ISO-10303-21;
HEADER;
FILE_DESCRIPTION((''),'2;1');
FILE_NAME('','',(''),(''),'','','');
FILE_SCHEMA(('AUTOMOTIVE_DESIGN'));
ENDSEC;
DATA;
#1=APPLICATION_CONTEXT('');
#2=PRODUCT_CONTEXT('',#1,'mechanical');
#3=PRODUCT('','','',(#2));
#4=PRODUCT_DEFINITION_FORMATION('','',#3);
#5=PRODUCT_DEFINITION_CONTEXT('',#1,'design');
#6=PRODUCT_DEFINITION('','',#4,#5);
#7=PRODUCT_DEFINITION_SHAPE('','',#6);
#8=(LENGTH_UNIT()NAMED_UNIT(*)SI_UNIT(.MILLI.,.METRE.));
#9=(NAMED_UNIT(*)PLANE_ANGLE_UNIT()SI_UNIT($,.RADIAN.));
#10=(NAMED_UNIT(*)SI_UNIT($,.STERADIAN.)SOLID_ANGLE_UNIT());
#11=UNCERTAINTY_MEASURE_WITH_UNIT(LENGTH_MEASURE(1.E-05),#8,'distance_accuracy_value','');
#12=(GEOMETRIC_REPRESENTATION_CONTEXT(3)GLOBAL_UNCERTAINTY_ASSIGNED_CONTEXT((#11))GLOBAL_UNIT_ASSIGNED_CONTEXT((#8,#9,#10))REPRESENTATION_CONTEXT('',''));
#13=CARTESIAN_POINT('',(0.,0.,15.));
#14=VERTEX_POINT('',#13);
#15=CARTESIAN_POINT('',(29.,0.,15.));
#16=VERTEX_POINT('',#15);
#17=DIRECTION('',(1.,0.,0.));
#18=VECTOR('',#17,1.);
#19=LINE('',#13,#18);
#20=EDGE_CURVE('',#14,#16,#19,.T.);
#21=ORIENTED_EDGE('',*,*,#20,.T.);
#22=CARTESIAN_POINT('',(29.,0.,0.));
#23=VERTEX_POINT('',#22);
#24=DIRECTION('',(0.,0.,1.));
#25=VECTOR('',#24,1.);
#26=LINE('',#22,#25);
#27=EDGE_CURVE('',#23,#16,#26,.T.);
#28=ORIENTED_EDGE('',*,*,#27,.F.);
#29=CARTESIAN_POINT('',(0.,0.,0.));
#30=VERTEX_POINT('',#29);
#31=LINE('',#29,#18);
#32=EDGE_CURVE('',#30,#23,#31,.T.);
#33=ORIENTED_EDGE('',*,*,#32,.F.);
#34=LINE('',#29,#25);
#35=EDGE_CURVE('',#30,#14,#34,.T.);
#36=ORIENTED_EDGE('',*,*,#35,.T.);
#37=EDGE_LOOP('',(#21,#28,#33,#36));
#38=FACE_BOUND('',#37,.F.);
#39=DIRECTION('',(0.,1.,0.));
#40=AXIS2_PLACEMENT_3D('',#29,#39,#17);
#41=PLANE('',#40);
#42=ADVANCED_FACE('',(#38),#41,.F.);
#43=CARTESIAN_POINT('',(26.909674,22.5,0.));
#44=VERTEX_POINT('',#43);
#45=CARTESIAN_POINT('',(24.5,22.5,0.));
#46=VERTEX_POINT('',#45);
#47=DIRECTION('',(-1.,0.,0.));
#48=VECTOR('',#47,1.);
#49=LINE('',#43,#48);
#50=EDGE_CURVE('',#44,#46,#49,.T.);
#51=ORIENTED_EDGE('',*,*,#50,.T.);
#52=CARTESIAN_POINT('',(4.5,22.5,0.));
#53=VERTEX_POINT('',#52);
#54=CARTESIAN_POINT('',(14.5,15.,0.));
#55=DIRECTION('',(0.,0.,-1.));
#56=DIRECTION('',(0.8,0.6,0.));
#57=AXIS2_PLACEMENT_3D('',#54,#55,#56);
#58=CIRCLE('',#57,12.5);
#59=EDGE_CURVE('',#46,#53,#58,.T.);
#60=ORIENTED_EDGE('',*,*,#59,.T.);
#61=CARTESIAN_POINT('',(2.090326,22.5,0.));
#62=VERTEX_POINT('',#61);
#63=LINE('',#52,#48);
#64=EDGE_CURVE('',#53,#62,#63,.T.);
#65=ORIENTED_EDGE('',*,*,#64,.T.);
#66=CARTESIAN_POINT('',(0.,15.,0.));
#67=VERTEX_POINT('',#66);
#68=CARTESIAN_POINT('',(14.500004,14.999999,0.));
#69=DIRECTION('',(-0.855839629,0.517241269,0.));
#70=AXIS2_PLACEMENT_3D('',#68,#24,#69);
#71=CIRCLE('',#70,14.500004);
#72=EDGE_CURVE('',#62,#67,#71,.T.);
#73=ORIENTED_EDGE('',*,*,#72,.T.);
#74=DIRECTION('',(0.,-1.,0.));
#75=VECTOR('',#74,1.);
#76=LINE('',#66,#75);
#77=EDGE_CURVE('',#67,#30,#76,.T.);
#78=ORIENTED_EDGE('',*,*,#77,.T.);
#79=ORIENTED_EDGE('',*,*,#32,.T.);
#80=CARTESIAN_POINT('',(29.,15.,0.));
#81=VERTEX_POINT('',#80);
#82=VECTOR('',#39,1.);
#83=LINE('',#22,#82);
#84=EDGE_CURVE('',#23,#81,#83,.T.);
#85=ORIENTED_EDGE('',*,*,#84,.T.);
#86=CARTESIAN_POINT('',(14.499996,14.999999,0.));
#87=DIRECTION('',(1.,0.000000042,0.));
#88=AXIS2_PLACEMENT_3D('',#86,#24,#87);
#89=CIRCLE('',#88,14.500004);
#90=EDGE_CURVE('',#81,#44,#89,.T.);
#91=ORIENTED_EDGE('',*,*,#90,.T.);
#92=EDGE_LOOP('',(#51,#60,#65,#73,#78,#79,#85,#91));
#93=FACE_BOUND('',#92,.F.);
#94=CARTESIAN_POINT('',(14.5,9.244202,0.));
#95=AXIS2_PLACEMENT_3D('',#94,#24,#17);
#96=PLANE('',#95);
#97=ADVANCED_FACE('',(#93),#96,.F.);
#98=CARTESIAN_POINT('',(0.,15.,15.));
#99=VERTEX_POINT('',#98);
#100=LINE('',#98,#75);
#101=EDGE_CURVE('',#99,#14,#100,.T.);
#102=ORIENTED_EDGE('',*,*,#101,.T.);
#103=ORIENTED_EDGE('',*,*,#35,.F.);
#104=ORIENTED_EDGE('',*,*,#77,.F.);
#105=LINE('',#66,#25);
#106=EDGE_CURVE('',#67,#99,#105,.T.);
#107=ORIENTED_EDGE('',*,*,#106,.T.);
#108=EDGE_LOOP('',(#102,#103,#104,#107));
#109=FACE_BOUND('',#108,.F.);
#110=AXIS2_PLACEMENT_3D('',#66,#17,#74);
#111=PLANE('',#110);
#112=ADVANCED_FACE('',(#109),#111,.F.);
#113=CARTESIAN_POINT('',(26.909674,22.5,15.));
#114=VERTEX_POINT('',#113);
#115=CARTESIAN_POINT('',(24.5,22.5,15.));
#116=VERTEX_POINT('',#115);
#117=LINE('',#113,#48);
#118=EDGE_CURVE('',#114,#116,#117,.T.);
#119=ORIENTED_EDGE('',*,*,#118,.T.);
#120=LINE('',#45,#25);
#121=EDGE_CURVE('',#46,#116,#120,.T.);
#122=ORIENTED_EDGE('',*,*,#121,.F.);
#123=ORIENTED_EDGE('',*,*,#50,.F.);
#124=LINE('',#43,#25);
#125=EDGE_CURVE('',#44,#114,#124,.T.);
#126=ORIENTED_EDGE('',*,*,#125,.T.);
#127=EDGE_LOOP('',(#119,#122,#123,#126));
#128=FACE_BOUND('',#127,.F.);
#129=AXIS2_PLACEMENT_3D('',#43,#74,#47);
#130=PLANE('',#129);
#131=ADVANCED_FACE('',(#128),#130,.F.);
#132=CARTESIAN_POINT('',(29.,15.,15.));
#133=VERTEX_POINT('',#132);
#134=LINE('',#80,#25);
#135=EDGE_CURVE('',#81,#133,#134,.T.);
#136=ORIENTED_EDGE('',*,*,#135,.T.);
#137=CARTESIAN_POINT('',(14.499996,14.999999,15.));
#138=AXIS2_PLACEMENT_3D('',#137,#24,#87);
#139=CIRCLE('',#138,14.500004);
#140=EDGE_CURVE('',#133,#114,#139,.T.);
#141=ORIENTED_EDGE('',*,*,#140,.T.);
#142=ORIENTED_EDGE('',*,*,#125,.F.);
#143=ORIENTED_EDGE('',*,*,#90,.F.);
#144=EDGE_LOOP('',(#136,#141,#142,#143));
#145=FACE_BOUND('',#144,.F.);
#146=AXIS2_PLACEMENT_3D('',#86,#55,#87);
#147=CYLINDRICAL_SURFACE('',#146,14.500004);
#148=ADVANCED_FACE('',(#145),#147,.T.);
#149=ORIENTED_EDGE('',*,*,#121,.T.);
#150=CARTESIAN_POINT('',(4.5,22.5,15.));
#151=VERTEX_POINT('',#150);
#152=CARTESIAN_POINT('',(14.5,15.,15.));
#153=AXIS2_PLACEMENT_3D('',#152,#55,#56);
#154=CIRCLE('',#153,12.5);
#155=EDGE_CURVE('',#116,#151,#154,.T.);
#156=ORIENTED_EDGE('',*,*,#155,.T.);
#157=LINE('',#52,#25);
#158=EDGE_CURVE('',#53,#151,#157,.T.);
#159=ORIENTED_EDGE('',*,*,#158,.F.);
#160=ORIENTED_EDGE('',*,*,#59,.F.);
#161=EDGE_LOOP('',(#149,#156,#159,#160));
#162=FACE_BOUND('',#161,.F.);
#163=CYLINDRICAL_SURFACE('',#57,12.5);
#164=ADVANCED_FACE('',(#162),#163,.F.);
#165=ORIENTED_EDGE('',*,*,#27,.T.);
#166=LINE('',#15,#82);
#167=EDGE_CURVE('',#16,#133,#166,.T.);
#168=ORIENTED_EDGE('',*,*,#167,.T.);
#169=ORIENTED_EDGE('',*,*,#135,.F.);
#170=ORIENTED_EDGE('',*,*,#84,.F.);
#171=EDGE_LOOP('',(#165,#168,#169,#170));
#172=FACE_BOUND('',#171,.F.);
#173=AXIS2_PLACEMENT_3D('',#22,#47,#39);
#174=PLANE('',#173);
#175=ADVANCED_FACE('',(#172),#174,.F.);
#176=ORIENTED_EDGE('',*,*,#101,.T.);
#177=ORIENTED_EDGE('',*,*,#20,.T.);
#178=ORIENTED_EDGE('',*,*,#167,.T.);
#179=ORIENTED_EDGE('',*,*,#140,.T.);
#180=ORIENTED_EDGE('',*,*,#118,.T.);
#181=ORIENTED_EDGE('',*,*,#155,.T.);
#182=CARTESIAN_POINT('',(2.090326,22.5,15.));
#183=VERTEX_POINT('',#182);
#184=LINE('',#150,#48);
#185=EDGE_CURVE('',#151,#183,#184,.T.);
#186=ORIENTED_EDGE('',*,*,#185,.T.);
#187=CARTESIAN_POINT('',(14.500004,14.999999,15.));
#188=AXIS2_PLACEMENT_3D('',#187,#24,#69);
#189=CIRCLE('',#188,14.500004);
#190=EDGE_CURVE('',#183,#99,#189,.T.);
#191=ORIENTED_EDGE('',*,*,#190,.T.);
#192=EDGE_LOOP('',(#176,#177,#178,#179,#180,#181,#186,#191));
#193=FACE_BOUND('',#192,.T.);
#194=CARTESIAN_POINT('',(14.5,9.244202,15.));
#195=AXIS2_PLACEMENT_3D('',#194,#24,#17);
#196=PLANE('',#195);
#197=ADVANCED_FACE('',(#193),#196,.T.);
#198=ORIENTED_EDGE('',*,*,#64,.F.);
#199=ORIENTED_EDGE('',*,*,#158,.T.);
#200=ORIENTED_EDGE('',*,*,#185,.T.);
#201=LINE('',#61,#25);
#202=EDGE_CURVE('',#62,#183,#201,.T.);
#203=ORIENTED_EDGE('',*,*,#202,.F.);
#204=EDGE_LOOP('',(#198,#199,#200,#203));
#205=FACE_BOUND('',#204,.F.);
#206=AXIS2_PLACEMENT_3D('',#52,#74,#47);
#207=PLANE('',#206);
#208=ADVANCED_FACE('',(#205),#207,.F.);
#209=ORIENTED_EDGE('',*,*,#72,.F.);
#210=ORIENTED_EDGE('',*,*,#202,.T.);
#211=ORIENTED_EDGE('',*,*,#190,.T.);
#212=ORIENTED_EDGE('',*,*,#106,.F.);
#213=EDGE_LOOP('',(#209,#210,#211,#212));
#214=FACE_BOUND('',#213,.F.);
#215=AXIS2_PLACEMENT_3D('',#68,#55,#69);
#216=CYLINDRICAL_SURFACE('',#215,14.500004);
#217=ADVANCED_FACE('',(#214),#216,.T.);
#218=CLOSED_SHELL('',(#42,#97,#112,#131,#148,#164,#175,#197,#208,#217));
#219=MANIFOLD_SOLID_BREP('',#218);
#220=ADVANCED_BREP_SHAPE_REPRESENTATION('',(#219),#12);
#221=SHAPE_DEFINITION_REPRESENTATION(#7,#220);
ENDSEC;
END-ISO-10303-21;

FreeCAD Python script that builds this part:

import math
import FreeCAD as App
import Part
import Sketcher
from FreeCAD import Vector

doc = App.newDocument("Part")
params = doc.addObject("Spreadsheet::Sheet", "Params")
for row, (alias, value) in enumerate([
    ("sketch1_radius", "12.5 mm"),
    ("sketch1_width", "29 mm"),
    ("sketch1_height", "15 mm"),
    ("sketch1_width2", "10 mm"),
    ("pad1_length", "15 mm"),
], start=1):
    params.set(f"A{row}", alias)
    params.set(f"B{row}", "=" + value)
    params.setAlias(f"B{row}", alias)

body = doc.addObject("PartDesign::Body", "Body")

sketch1 = body.newObject("Sketcher::SketchObject", "Sketch")
sketch1.AttachmentSupport = (doc.getObject("XY_Plane"), [""])
sketch1.MapMode = "FlatFace"
sketch1.addGeometry([
    Part.ArcOfCircle(Part.Circle(Vector(14.5, 15, 0), Vector(0, 0, 1), 12.5), math.radians(143), math.radians(397)),
    Part.LineSegment(Vector(4.5, 22.5, 0), Vector(2.1, 22.5, 0)),
    Part.ArcOfCircle(Part.Circle(Vector(14.5, 15, 0), Vector(0, 0, 1), 14.5), math.radians(149), math.radians(180)),
    Part.LineSegment(Vector(0, 15, 0), Vector(0, 0, 0)),
    Part.LineSegment(Vector(0, 0, 0), Vector(29, 0, 0)),
    Part.LineSegment(Vector(29, 0, 0), Vector(29, 15, 0)),
    Part.ArcOfCircle(Part.Circle(Vector(14.5, 15, 0), Vector(0, 0, 1), 14.5), math.radians(0), math.radians(31)),
    Part.LineSegment(Vector(26.9, 22.5, 0), Vector(24.5, 22.5, 0)),
], False)
sketch1.addConstraint([
    Sketcher.Constraint("Coincident", 0, 1, 1, 1),
    Sketcher.Constraint("Coincident", 1, 2, 2, 1),
    Sketcher.Constraint("Tangent", 2, 2, 3, 1),
    Sketcher.Constraint("Coincident", 3, 2, 4, 1),
    Sketcher.Constraint("Coincident", 4, 2, 5, 1),
    Sketcher.Constraint("Tangent", 5, 2, 6, 1),
    Sketcher.Constraint("Coincident", 6, 2, 7, 1),
    Sketcher.Constraint("Coincident", 7, 2, 0, 2),
    Sketcher.Constraint("Horizontal", 1),
    Sketcher.Constraint("Vertical", 3),
    Sketcher.Constraint("Horizontal", 4),
    Sketcher.Constraint("Vertical", 5),
    Sketcher.Constraint("Horizontal", 7),
    Sketcher.Constraint("Coincident", 3, 2, -1, 1),
    Sketcher.Constraint("Coincident", 2, 3, 0, 3),
    Sketcher.Constraint("Coincident", 6, 3, 0, 3),
    Sketcher.Constraint("Equal", 2, 6),
    Sketcher.Constraint("Horizontal", 1, 2, 6, 2),
    Sketcher.Constraint("Radius", 0, 12.5),
    Sketcher.Constraint("DistanceX", 4, 1, 4, 2, 29.0),
    Sketcher.Constraint("DistanceY", 3, 2, 3, 1, 15.0),
    Sketcher.Constraint("DistanceX", 0, 1, 0, 3, 10.0),
])
sketch1.setExpression("Constraints[18]", "Params.sketch1_radius")
sketch1.setExpression("Constraints[19]", "Params.sketch1_width")
sketch1.setExpression("Constraints[20]", "Params.sketch1_height")
sketch1.setExpression("Constraints[21]", "Params.sketch1_width2")
pad1 = body.newObject("PartDesign::Pad", "Pad")
pad1.Profile = sketch1
pad1.setExpression("Length", "Params.pad1_length")

doc.recompute()
